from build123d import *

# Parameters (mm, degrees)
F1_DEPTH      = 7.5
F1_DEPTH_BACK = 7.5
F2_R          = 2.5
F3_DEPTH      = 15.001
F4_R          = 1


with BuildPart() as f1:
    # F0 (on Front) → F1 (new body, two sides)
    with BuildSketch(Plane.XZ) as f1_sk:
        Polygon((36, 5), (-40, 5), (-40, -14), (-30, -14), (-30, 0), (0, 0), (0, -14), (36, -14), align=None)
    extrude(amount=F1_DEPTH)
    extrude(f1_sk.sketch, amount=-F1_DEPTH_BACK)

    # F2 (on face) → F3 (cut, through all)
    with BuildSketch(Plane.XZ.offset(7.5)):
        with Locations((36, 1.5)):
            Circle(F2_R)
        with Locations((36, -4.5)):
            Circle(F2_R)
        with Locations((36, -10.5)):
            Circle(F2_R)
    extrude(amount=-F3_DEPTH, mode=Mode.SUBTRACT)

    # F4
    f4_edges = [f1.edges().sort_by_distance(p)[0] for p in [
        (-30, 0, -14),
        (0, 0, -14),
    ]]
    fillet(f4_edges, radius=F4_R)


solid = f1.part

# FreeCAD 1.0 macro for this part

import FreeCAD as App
import Part
import Sketcher

V = App.Vector


def edges_at(feature, points):
    """Names of the edges that pass closest to the given points."""
    edges = feature.Shape.Edges
    near = lambda p: min(range(len(edges)), key=lambda i: edges[i].distToShape(Part.Vertex(*p))[0])
    return sorted({f"Edge{near(p) + 1}" for p in points})


def add_polygon(sketch, points):
    """Adds a closed chain of lines whose ends are joined by coincident constraints."""
    first, n = sketch.GeometryCount, len(points)
    for a, b in zip(points, points[1:] + points[:1]):
        sketch.addGeometry(Part.LineSegment(App.Vector(*a, 0), App.Vector(*b, 0)), False)
    for i in range(n):
        sketch.addConstraint(Sketcher.Constraint("Coincident", first + i, 2, first + (i + 1) % n, 1))

doc = App.newDocument("Part")
body = doc.addObject("PartDesign::Body", "Body")

sketch1 = body.newObject("Sketcher::SketchObject", "Sketch")
sketch1.AttachmentSupport = (doc.getObject("XZ_Plane"), [""])
sketch1.MapMode = "FlatFace"
add_polygon(sketch1, [(36, 5), (-40, 5), (-40, -14), (-30, -14), (-30, 0), (0, 0), (0, -14), (36, -14)])
sketch1.addConstraint([
    Sketcher.Constraint("Horizontal", 0),
    Sketcher.Constraint("Vertical", 1),
    Sketcher.Constraint("Horizontal", 2),
    Sketcher.Constraint("Vertical", 3),
    Sketcher.Constraint("Horizontal", 4),
    Sketcher.Constraint("Vertical", 5),
    Sketcher.Constraint("Horizontal", 6),
    Sketcher.Constraint("Vertical", 7),
    Sketcher.Constraint("Coincident", 4, 2, -1, 1),
    Sketcher.Constraint("Horizontal", 2, 2, 5, 2),
    Sketcher.Constraint("DistanceX", 0, 2, 0, 1, 76.0),
    Sketcher.Constraint("DistanceX", 2, 1, 2, 2, 10.0),
    Sketcher.Constraint("DistanceX", 4, 1, 4, 2, 30.0),
    Sketcher.Constraint("DistanceY", 1, 2, 1, 1, 19.0),
    Sketcher.Constraint("DistanceY", 3, 1, 3, 2, 14.0),
])
pad1 = body.newObject("PartDesign::Pad", "Pad")
pad1.Profile = sketch1
pad1.Type = "TwoLengths"
pad1.Length = 7.5
pad1.Length2 = 7.5

sketch2 = body.newObject("Sketcher::SketchObject", "Sketch001")
sketch2.AttachmentSupport = (doc.getObject("XZ_Plane"), [""])
sketch2.MapMode = "FlatFace"
sketch2.AttachmentOffset = App.Placement(V(0, 0, 7.5), App.Rotation())
sketch2.addGeometry([
    Part.Circle(V(36, 1.5, 0), V(0, 0, 1), 2.5),
    Part.Circle(V(36, -4.5, 0), V(0, 0, 1), 2.5),
    Part.Circle(V(36, -10.5, 0), V(0, 0, 1), 2.5),
], False)
sketch2.addConstraint([
    Sketcher.Constraint("Equal", 0, 1),
    Sketcher.Constraint("Equal", 1, 2),
    Sketcher.Constraint("Vertical", 0, 3, 1, 3),
    Sketcher.Constraint("Vertical", 1, 3, 2, 3),
    Sketcher.Constraint("Diameter", 0, 5.0),
    Sketcher.Constraint("DistanceX", -1, 1, 0, 3, 36.0),
    Sketcher.Constraint("DistanceY", 1, 3, 0, 3, 6.0),
    Sketcher.Constraint("DistanceY", 2, 3, 1, 3, 6.0),
    Sketcher.Constraint("DistanceY", -1, 1, 0, 3, 1.5),
])
pocket1 = body.newObject("PartDesign::Pocket", "Pocket")
pocket1.Profile = sketch2
pocket1.Type = "ThroughAll"
doc.recompute()

fillet = body.newObject("PartDesign::Fillet", "Fillet")
fillet.Base = (pocket1, edges_at(pocket1, [(-30, 0, -14), (0, 0, -14)]))
fillet.Radius = 1

doc.recompute()
